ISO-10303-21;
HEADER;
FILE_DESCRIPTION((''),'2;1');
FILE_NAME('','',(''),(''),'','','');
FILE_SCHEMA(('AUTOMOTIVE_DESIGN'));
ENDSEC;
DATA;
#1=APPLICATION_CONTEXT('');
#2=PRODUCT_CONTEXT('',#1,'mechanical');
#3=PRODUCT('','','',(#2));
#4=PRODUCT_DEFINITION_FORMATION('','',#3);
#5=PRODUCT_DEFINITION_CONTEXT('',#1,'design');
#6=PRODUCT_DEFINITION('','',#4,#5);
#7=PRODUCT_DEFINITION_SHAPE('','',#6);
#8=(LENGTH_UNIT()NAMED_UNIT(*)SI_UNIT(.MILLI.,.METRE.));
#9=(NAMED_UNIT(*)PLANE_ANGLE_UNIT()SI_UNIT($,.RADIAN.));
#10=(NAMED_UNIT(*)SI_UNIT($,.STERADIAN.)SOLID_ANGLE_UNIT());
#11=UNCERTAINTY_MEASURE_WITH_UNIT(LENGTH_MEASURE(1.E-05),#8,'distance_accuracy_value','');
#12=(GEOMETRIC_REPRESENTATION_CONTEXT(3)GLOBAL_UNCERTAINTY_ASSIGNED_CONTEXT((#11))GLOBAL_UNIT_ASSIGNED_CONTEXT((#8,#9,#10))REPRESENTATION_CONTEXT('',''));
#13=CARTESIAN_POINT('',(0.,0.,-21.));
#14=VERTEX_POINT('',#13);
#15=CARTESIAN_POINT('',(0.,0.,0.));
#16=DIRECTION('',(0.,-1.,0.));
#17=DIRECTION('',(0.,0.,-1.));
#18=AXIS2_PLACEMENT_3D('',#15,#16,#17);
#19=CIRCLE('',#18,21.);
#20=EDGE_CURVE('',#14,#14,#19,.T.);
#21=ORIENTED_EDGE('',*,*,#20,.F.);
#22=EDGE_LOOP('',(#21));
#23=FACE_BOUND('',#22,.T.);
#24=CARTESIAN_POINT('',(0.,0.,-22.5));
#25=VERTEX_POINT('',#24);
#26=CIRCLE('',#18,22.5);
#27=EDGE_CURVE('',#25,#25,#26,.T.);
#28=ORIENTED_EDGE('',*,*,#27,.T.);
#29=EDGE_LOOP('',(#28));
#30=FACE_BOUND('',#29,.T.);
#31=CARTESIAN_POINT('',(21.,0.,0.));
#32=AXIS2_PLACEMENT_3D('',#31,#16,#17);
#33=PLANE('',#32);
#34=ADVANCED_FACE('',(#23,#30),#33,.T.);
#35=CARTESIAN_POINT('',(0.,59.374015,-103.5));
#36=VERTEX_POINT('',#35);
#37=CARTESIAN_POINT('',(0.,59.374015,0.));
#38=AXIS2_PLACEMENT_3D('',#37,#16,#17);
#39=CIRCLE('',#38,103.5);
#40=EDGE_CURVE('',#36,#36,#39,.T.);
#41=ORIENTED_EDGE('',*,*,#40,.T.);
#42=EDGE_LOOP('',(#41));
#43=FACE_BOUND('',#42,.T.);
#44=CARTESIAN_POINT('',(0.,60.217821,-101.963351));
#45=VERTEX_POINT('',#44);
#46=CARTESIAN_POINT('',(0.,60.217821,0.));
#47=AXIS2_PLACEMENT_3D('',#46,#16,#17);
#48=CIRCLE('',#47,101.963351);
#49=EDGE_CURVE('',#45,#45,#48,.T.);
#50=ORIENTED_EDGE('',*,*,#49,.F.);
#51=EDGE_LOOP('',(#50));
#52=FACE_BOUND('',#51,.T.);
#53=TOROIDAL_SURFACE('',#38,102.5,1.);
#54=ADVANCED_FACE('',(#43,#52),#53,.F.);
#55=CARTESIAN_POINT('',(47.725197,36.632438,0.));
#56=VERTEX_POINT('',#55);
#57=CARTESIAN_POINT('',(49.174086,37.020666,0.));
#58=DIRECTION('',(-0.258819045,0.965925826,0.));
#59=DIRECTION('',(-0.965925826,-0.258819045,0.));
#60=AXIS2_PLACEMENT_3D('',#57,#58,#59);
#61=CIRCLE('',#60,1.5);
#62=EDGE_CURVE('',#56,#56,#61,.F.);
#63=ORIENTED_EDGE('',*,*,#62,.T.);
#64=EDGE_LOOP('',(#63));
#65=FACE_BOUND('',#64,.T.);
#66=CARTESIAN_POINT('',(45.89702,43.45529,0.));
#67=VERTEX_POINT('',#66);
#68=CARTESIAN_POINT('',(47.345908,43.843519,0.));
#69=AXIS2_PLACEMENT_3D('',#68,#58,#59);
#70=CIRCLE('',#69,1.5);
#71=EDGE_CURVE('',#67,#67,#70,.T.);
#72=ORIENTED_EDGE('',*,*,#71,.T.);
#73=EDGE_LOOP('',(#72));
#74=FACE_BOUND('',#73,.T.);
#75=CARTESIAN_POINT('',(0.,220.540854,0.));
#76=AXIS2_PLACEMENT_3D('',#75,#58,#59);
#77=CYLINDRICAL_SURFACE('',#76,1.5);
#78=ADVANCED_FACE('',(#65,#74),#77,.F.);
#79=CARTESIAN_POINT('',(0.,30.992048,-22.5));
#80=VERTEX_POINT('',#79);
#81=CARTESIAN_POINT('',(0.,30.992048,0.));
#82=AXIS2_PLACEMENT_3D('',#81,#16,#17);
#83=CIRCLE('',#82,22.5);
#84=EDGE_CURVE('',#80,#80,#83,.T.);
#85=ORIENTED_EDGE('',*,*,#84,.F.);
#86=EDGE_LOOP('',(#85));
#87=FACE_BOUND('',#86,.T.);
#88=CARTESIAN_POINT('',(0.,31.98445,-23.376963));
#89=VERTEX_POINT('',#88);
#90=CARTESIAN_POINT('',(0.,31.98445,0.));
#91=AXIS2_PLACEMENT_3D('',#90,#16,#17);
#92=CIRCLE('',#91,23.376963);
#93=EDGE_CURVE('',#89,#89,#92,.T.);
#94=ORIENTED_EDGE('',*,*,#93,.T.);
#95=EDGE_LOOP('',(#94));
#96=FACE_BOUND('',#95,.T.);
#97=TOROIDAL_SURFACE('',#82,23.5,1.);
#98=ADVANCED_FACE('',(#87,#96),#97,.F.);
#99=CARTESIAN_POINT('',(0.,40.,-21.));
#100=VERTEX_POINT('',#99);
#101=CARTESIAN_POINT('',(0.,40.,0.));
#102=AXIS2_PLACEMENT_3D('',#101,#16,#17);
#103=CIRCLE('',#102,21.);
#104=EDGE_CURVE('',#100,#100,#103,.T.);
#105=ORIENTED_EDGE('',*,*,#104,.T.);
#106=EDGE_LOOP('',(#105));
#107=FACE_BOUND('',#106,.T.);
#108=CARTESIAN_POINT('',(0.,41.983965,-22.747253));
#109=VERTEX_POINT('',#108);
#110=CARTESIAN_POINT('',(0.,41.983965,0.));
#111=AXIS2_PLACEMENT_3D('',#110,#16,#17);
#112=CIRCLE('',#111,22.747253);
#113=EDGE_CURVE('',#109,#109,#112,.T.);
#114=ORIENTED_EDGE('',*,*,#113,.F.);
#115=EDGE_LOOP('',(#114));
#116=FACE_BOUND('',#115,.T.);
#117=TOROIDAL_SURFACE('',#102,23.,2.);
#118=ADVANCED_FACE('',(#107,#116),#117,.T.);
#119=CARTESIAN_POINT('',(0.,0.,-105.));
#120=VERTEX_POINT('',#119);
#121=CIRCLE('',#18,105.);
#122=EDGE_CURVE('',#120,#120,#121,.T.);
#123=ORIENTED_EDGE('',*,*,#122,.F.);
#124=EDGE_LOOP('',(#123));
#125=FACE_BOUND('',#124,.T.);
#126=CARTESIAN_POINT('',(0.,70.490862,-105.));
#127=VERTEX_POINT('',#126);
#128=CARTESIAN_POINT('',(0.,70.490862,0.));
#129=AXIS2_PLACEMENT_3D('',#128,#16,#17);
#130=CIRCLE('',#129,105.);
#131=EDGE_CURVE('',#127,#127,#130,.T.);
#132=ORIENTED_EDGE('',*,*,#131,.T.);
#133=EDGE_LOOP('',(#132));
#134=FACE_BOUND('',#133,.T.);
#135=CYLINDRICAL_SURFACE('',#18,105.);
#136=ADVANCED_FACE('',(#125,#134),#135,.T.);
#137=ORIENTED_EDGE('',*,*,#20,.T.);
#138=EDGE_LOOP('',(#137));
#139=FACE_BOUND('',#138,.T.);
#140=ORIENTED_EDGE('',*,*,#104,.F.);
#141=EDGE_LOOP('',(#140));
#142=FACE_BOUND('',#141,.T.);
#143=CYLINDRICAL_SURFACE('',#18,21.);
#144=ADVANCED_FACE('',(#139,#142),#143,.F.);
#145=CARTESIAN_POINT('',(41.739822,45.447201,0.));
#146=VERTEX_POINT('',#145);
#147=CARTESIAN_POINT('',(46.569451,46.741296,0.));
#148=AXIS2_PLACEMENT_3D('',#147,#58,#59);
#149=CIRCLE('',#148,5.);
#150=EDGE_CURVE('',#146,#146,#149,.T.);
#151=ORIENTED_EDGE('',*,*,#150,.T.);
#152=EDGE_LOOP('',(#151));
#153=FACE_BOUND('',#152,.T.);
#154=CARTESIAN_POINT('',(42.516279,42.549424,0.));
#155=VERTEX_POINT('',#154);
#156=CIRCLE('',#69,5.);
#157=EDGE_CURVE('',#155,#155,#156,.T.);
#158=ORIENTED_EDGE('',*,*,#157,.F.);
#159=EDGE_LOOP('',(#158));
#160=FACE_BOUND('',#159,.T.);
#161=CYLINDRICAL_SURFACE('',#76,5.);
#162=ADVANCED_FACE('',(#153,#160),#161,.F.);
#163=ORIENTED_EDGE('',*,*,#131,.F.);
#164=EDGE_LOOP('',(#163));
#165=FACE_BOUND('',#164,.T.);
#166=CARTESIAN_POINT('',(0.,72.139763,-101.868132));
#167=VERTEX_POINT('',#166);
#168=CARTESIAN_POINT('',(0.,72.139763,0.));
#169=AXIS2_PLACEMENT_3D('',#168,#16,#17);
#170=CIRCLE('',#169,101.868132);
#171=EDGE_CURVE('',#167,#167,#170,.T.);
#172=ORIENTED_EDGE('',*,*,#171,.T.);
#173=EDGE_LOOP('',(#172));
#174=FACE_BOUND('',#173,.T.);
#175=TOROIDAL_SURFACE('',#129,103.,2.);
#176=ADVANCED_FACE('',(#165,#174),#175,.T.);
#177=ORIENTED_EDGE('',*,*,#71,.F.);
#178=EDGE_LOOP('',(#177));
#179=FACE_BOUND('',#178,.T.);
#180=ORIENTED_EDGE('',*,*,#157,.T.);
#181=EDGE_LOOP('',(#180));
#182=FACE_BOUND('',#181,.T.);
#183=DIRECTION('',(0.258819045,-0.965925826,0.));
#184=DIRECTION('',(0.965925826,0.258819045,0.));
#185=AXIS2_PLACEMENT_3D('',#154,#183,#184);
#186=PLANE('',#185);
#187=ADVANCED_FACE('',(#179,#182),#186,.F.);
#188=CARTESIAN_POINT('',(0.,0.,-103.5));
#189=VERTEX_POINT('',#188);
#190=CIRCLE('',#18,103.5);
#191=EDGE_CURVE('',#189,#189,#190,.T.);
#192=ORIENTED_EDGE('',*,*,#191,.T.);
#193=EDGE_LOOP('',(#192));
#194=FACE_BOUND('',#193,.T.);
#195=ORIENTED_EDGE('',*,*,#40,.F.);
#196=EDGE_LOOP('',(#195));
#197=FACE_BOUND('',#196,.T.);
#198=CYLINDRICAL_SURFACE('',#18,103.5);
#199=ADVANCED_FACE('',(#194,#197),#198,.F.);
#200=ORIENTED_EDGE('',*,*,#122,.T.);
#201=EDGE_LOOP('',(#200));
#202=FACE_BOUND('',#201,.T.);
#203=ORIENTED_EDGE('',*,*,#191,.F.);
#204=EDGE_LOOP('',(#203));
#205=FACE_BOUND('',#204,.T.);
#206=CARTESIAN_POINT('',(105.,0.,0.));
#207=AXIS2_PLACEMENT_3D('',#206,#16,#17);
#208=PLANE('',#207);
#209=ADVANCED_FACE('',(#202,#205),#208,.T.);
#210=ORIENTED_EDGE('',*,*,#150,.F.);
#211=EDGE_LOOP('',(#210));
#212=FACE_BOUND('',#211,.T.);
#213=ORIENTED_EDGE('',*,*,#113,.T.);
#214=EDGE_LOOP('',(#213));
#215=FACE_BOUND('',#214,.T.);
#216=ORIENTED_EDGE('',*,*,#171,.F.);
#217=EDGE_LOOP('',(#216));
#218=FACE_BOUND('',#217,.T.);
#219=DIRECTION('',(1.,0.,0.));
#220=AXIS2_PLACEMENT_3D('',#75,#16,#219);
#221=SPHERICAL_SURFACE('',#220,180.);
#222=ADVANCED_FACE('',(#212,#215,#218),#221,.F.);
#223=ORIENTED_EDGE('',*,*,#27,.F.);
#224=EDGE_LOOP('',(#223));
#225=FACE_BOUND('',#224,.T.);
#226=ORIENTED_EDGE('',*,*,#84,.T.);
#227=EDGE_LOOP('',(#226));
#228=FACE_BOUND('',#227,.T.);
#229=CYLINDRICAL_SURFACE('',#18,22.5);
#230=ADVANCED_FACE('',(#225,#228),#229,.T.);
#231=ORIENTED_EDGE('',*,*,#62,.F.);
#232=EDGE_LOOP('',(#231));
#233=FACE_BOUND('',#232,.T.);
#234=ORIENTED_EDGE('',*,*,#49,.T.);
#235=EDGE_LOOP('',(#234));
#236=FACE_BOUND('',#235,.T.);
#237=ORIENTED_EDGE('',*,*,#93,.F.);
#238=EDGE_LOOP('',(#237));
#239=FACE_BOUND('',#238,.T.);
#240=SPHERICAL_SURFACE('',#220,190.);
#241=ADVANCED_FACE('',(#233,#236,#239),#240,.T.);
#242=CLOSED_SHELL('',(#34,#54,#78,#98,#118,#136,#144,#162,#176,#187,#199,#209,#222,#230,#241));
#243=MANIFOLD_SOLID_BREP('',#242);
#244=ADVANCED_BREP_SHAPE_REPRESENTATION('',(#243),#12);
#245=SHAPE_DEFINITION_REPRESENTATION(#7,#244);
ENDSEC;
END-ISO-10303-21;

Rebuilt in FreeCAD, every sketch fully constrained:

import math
import FreeCAD as App
import Part
import Sketcher
Q = App.Units.Quantity

doc = App.newDocument("Part")
body = doc.addObject("PartDesign::Body", "Body")

# Sketch on XY plane
sketch1 = body.newObject("Sketcher::SketchObject", "Sketch")
sketch1.AttachmentSupport = (doc.getObject("XY_Plane"), [""])
sketch1.MapMode = "FlatFace"
sketch1.addGeometry([
    Part.LineSegment(App.Vector(21, 40, 0), App.Vector(21, 0, 0)),  # 0
    Part.LineSegment(App.Vector(21, 0, 0), App.Vector(22.5, 0, 0)),  # 1
    Part.LineSegment(App.Vector(22.5, 0, 0), App.Vector(22.5, 30.992048, 0)),  # 2
    Part.ArcOfCircle(Part.Circle(App.Vector(23.5, 30.992048, 0), App.Vector(0, 0, 1), 1), math.radians(97.067389), math.radians(180)),  # 3
    Part.ArcOfCircle(Part.Circle(App.Vector(0, 220.540854, 0), App.Vector(0, 0, 1), 190), math.radians(-82.932611), math.radians(-57.544174)),  # 4
    Part.ArcOfCircle(Part.Circle(App.Vector(102.5, 59.374015, 0), App.Vector(0, 0, 1), 1), math.radians(0), math.radians(122.455826)),  # 5
    Part.LineSegment(App.Vector(103.5, 59.374015, 0), App.Vector(103.5, 0, 0)),  # 6
    Part.LineSegment(App.Vector(103.5, 0, 0), App.Vector(105, 0, 0)),  # 7
    Part.LineSegment(App.Vector(105, 0, 0), App.Vector(105, 70.490862, 0)),  # 8
    Part.ArcOfCircle(Part.Circle(App.Vector(103, 70.490862, 0), App.Vector(0, 0, 1), 2), math.radians(0), math.radians(124.46718)),  # 9
    Part.ArcOfCircle(Part.Circle(App.Vector(0, 220.540854, 0), App.Vector(0, 0, 1), 180), math.radians(-82.739912), math.radians(-55.53282)),  # 10
    Part.ArcOfCircle(Part.Circle(App.Vector(23, 40, 0), App.Vector(0, 0, 1), 2), math.radians(97.260088), math.radians(180)),  # 11
], False)
sketch1.addConstraint([
    Sketcher.Constraint("Coincident", 0, 2, 1, 1),
    Sketcher.Constraint("Coincident", 1, 2, 2, 1),
    Sketcher.Constraint("Tangent", 2, 2, 3, 2),
    Sketcher.Constraint("Tangent", 3, 1, 4, 1),
    Sketcher.Constraint("Tangent", 4, 2, 5, 2),
    Sketcher.Constraint("Tangent", 5, 1, 6, 1),
    Sketcher.Constraint("Coincident", 6, 2, 7, 1),
    Sketcher.Constraint("Coincident", 7, 2, 8, 1),
    Sketcher.Constraint("Tangent", 8, 2, 9, 1),
    Sketcher.Constraint("Tangent", 9, 2, 10, 2),
    Sketcher.Constraint("Tangent", 10, 1, 11, 1),
    Sketcher.Constraint("Tangent", 11, 2, 0, 1),
    Sketcher.Constraint("Vertical", 0),
    Sketcher.Constraint("Horizontal", 1),
    Sketcher.Constraint("Vertical", 2),
    Sketcher.Constraint("Vertical", 6),
    Sketcher.Constraint("Horizontal", 7),
    Sketcher.Constraint("Vertical", 8),
    Sketcher.Constraint("Coincident", 10, 3, 4, 3),
    Sketcher.Constraint("Equal", 3, 5),
    Sketcher.Constraint("Equal", 9, 11),
    Sketcher.Constraint("PointOnObject", 4, 3, -2),
    Sketcher.Constraint("PointOnObject", 0, 2, -1),
    Sketcher.Constraint("PointOnObject", 6, 2, -1),
    Sketcher.Constraint("Equal", 1, 7),
    Sketcher.Constraint("Radius", 3, Q("1 mm")),
    Sketcher.Constraint("Radius", 4, Q("190 mm")),
    Sketcher.Constraint("Radius", 9, Q("2 mm")),
    Sketcher.Constraint("Radius", 10, Q("180 mm")),
    Sketcher.Constraint("DistanceY", 0, 2, 0, 1, Q("40 mm")),
    Sketcher.Constraint("DistanceX", 1, 1, 1, 2, Q("1.5 mm")),
    Sketcher.Constraint("DistanceX", -1, 1, 9, 3, Q("103 mm")),
    Sketcher.Constraint("DistanceX", -1, 1, 11, 3, Q("23 mm")),
])
revolution = body.newObject("PartDesign::Revolution", "Revolution")
revolution.Profile = sketch1
revolution.ReferenceAxis = (sketch1, ["V_Axis"])
revolution.Angle = 360

# Sketch on XY plane
sketch2 = body.newObject("Sketcher::SketchObject", "Sketch001")
sketch2.AttachmentSupport = (doc.getObject("XY_Plane"), [""])
sketch2.MapMode = "FlatFace"
sketch2.addGeometry([
    Part.LineSegment(App.Vector(41.739822, 45.447201, 0), App.Vector(42.516279, 42.549424, 0)),  # 0
    Part.LineSegment(App.Vector(42.516279, 42.549424, 0), App.Vector(45.89702, 43.45529, 0)),  # 1
    Part.LineSegment(App.Vector(45.89702, 43.45529, 0), App.Vector(48.226391, 34.761958, 0)),  # 2
    Part.LineSegment(App.Vector(48.226391, 34.761958, 0), App.Vector(49.67528, 35.150187, 0)),  # 3
    Part.LineSegment(App.Vector(49.67528, 35.150187, 0), App.Vector(46.569451, 46.741296, 0)),  # 4
    Part.LineSegment(App.Vector(46.569451, 46.741296, 0), App.Vector(41.739822, 45.447201, 0)),  # 5
], False)
sketch2.addGeometry(Part.LineSegment(App.Vector(46.569451, 46.741297, 0), App.Vector(49.67528, 35.150187, 0)), True)  # axis
sketch2.addConstraint([
    Sketcher.Constraint("Coincident", 0, 2, 1, 1),
    Sketcher.Constraint("Coincident", 1, 2, 2, 1),
    Sketcher.Constraint("Coincident", 2, 2, 3, 1),
    Sketcher.Constraint("Coincident", 3, 2, 4, 1),
    Sketcher.Constraint("Coincident", 4, 2, 5, 1),
    Sketcher.Constraint("Coincident", 5, 2, 0, 1),
    Sketcher.Constraint("Coincident", 6, 1, 4, 2),
    Sketcher.Constraint("Coincident", 6, 2, 3, 2),
    Sketcher.Constraint("Perpendicular", 0, 1),
    Sketcher.Constraint("Perpendicular", 1, 2),
    Sketcher.Constraint("Perpendicular", 2, 3),
    Sketcher.Constraint("Perpendicular", 3, 4),
    Sketcher.Constraint("Perpendicular", 4, 5),
    Sketcher.Constraint("Angle", 0, Q("-75 deg")),
    Sketcher.Constraint("Distance", 0, Q("3 mm")),
    Sketcher.Constraint("Distance", 2, Q("9 mm")),
    Sketcher.Constraint("Distance", 5, Q("5 mm")),
    Sketcher.Constraint("Distance", 1, Q("3.5 mm")),
    Sketcher.Constraint("DistanceY", -1, 1, 5, 2, Q("45.447201 mm")),
    Sketcher.Constraint("DistanceX", -1, 1, 0, 2, Q("42.516279 mm")),
])
groove = body.newObject("PartDesign::Groove", "Groove")
groove.Profile = sketch2
groove.ReferenceAxis = (sketch2, ["Axis0"])
groove.Angle = 360

doc.recompute()
